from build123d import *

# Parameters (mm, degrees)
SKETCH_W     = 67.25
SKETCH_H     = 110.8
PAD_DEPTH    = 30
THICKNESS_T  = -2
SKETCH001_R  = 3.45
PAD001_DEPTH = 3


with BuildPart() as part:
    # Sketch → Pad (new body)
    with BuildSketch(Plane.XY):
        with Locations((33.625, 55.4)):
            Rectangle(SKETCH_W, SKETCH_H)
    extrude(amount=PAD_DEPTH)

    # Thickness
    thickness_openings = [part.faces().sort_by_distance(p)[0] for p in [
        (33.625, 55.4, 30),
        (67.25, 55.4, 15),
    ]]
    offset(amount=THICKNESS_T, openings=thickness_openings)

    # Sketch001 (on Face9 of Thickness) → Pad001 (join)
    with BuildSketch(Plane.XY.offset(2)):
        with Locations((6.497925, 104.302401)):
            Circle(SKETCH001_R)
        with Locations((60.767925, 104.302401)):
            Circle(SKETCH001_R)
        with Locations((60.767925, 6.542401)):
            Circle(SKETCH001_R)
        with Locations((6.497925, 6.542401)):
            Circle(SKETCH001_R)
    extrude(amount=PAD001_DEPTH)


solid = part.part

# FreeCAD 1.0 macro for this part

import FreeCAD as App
import Part
import Sketcher
from FreeCAD import Vector


def faces_at(feature, points):
    """Names of the faces that lie closest to the given points."""
    faces = feature.Shape.Faces
    near = lambda p: min(range(len(faces)), key=lambda i: faces[i].distToShape(Part.Vertex(*p))[0])
    return sorted({f"Face{near(p) + 1}" for p in points})

doc = App.newDocument("Part")
body = doc.addObject("PartDesign::Body", "Body")

sketch1 = body.newObject("Sketcher::SketchObject", "Sketch")
sketch1.AttachmentSupport = (doc.getObject("XY_Plane"), [""])
sketch1.MapMode = "FlatFace"
sketch1.addGeometry([
    Part.LineSegment(Vector(0, 111, 0), Vector(0, 0, 0)),
    Part.LineSegment(Vector(0, 0, 0), Vector(67, 0, 0)),
    Part.LineSegment(Vector(67, 0, 0), Vector(67, 111, 0)),
    Part.LineSegment(Vector(67, 111, 0), Vector(0, 111, 0)),
], False)
sketch1.addConstraint([
    Sketcher.Constraint("Coincident", 0, 2, 1, 1),
    Sketcher.Constraint("Coincident", 1, 2, 2, 1),
    Sketcher.Constraint("Coincident", 2, 2, 3, 1),
    Sketcher.Constraint("Coincident", 3, 2, 0, 1),
    Sketcher.Constraint("Vertical", 0),
    Sketcher.Constraint("Horizontal", 1),
    Sketcher.Constraint("Vertical", 2),
    Sketcher.Constraint("Horizontal", 3),
    Sketcher.Constraint("Coincident", 0, 2, -1, 1),
    Sketcher.Constraint("DistanceY", 0, 2, 0, 1, 110.8),
    Sketcher.Constraint("DistanceX", 1, 1, 1, 2, 67.25),
])
pad1 = body.newObject("PartDesign::Pad", "Pad")
pad1.Profile = sketch1
pad1.Length = 30
doc.recompute()

thickness = body.newObject("PartDesign::Thickness", "Thickness")
thickness.Base = (pad1, faces_at(pad1, [(33.625, 55.4, 30), (67.25, 55.4, 15)]))
thickness.Value = 2
thickness.Reversed = True
thickness.Join = "Arc"

sketch2 = body.newObject("Sketcher::SketchObject", "Sketch001")
sketch2.AttachmentSupport = (doc.getObject("XY_Plane"), [""])
sketch2.MapMode = "FlatFace"
sketch2.AttachmentOffset = App.Placement(Vector(0, 0, 2), App.Rotation())
sketch2.addGeometry([
    Part.Circle(Vector(6.5, 104.3, 0), Vector(0, 0, 1), 3.5),
    Part.Circle(Vector(60.8, 104.3, 0), Vector(0, 0, 1), 3.5),
    Part.Circle(Vector(60.8, 6.5, 0), Vector(0, 0, 1), 3.5),
    Part.Circle(Vector(6.5, 6.5, 0), Vector(0, 0, 1), 3.5),
], False)
sketch2.addConstraint([
    Sketcher.Constraint("Equal", 0, 1),
    Sketcher.Constraint("Equal", 1, 2),
    Sketcher.Constraint("Equal", 2, 3),
    Sketcher.Constraint("Horizontal", 0, 3, 1, 3),
    Sketcher.Constraint("Horizontal", 2, 3, 3, 3),
    Sketcher.Constraint("Vertical", 1, 3, 2, 3),
    Sketcher.Constraint("Vertical", 0, 3, 3, 3),
    Sketcher.Constraint("Diameter", 0, 6.9),
    Sketcher.Constraint("DistanceX", 0, 3, 1, 3, 54.27),
    Sketcher.Constraint("DistanceY", 2, 3, 1, 3, 97.76),
    Sketcher.Constraint("DistanceY", -1, 1, 0, 3, 104.302401),
    Sketcher.Constraint("DistanceX", -1, 1, 0, 3, 6.497925),
])
pad2 = body.newObject("PartDesign::Pad", "Pad001")
pad2.Profile = sketch2
pad2.Length = 3

doc.recompute()
